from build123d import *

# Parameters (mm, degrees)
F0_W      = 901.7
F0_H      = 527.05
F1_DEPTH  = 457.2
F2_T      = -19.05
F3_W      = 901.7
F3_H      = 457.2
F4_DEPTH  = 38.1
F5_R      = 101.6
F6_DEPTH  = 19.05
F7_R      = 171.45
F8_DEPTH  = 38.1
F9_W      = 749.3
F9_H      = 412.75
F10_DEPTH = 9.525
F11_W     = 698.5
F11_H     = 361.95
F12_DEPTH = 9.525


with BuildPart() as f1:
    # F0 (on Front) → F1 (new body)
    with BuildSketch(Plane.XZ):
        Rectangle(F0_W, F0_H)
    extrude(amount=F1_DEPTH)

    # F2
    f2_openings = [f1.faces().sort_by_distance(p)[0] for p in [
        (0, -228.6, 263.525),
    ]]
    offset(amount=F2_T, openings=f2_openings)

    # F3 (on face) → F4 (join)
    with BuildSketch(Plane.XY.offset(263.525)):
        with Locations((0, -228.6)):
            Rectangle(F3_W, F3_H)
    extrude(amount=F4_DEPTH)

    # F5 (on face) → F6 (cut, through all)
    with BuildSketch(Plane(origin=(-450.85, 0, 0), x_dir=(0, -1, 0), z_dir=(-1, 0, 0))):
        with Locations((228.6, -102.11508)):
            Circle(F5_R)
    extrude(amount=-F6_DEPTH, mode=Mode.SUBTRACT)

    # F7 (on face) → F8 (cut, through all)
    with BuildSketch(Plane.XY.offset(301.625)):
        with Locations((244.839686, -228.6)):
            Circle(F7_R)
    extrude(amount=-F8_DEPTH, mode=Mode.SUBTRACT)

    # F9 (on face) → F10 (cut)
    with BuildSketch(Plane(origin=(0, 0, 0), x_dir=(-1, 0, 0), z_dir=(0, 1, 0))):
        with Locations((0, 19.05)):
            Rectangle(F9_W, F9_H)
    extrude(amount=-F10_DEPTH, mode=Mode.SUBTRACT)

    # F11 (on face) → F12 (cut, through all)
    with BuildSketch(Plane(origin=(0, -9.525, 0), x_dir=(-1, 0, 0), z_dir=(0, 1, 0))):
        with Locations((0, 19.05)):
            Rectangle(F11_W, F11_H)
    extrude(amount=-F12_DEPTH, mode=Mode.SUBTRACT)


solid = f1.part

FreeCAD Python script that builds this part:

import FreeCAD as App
import Part
import Sketcher
from FreeCAD import Vector
Q = App.Units.Quantity


def faces_at(feature, points):
    """Names of the faces that lie closest to the given points."""
    faces = feature.Shape.Faces
    near = lambda p: min(range(len(faces)), key=lambda i: faces[i].distToShape(Part.Vertex(*p))[0])
    return sorted({f"Face{near(p) + 1}" for p in points})

doc = App.newDocument("Part")
body = doc.addObject("PartDesign::Body", "Body")

# Sketch on XZ plane
sketch1 = body.newObject("Sketcher::SketchObject", "Sketch")
sketch1.AttachmentSupport = (doc.getObject("XZ_Plane"), [""])
sketch1.MapMode = "FlatFace"
sketch1.addGeometry(Part.LineSegment(Vector(-451, 264, 0), Vector(-451, -264, 0)), False)
sketch1.addGeometry(Part.LineSegment(Vector(-451, -264, 0), Vector(451, -264, 0)), False)
sketch1.addGeometry(Part.LineSegment(Vector(451, -264, 0), Vector(451, 264, 0)), False)
sketch1.addGeometry(Part.LineSegment(Vector(451, 264, 0), Vector(-451, 264, 0)), False)
sketch1.addConstraint(Sketcher.Constraint("Coincident", 0, 2, 1, 1))
sketch1.addConstraint(Sketcher.Constraint("Coincident", 1, 2, 2, 1))
sketch1.addConstraint(Sketcher.Constraint("Coincident", 2, 2, 3, 1))
sketch1.addConstraint(Sketcher.Constraint("Coincident", 3, 2, 0, 1))
sketch1.addConstraint(Sketcher.Constraint("Vertical", 0))
sketch1.addConstraint(Sketcher.Constraint("Horizontal", 1))
sketch1.addConstraint(Sketcher.Constraint("Vertical", 2))
sketch1.addConstraint(Sketcher.Constraint("Horizontal", 3))
sketch1.addConstraint(Sketcher.Constraint("Symmetric", 0, 2, 2, 2, -1, 1))
sketch1.addConstraint(Sketcher.Constraint("DistanceX", 1, 1, 1, 2, Q("35.5 in")))
sketch1.addConstraint(Sketcher.Constraint("DistanceY", 0, 2, 0, 1, Q("20.75 in")))
pad1 = body.newObject("PartDesign::Pad", "Pad")
pad1.Profile = sketch1
pad1.Length = Q("18 in")
doc.recompute()

thickness = body.newObject("PartDesign::Thickness", "Thickness")
thickness.Base = (pad1, faces_at(pad1, [(0, -228.6, 263.525)]))
thickness.Value = Q("0.75 in")
thickness.Reversed = True
thickness.Join = "Arc"

# Sketch on XY plane
sketch2 = body.newObject("Sketcher::SketchObject", "Sketch001")
sketch2.AttachmentSupport = (doc.getObject("XY_Plane"), [""])
sketch2.MapMode = "FlatFace"
sketch2.AttachmentOffset = App.Placement(Vector(0, 0, 10.375 * 25.4), App.Rotation())
sketch2.addGeometry(Part.LineSegment(Vector(-451, 0, 0), Vector(-451, -457, 0)), False)
sketch2.addGeometry(Part.LineSegment(Vector(-451, -457, 0), Vector(451, -457, 0)), False)
sketch2.addGeometry(Part.LineSegment(Vector(451, -457, 0), Vector(451, 0, 0)), False)
sketch2.addGeometry(Part.LineSegment(Vector(451, 0, 0), Vector(-451, 0, 0)), False)
sketch2.addConstraint(Sketcher.Constraint("Coincident", 0, 2, 1, 1))
sketch2.addConstraint(Sketcher.Constraint("Coincident", 1, 2, 2, 1))
sketch2.addConstraint(Sketcher.Constraint("Coincident", 2, 2, 3, 1))
sketch2.addConstraint(Sketcher.Constraint("Coincident", 3, 2, 0, 1))
sketch2.addConstraint(Sketcher.Constraint("Vertical", 0))
sketch2.addConstraint(Sketcher.Constraint("Horizontal", 1))
sketch2.addConstraint(Sketcher.Constraint("Vertical", 2))
sketch2.addConstraint(Sketcher.Constraint("Horizontal", 3))
sketch2.addConstraint(Sketcher.Constraint("Symmetric", 2, 2, 3, 2, -1, 1))
sketch2.addConstraint(Sketcher.Constraint("DistanceY", 0, 2, 0, 1, Q("18 in")))
sketch2.addConstraint(Sketcher.Constraint("DistanceX", 1, 1, 1, 2, Q("35.5 in")))
pad2 = body.newObject("PartDesign::Pad", "Pad001")
pad2.Profile = sketch2
pad2.Length = Q("1.5 in")

# Sketch on YZ plane
sketch3 = body.newObject("Sketcher::SketchObject", "Sketch002")
sketch3.AttachmentSupport = (doc.getObject("YZ_Plane"), [""])
sketch3.MapMode = "FlatFace"
sketch3.AttachmentOffset = App.Placement(Vector(0, 0, -17.75 * 25.4), App.Rotation())
sketch3.addGeometry(Part.Circle(Vector(-229, -102, 0), Vector(0, 0, 1), 102), False)
sketch3.addConstraint(Sketcher.Constraint("Diameter", 0, Q("8 in")))
sketch3.addConstraint(Sketcher.Constraint("DistanceX", 0, 3, -1, 1, Q("9 in")))
sketch3.addConstraint(Sketcher.Constraint("DistanceY", 0, 3, -1, 1, 102.11508))
pocket1 = body.newObject("PartDesign::Pocket", "Pocket")
pocket1.Profile = sketch3
pocket1.Length = Q("0.75 in")
pocket1.Reversed = True

# Sketch on XY plane
sketch4 = body.newObject("Sketcher::SketchObject", "Sketch003")
sketch4.AttachmentSupport = (doc.getObject("XY_Plane"), [""])
sketch4.MapMode = "FlatFace"
sketch4.AttachmentOffset = App.Placement(Vector(0, 0, 11.875 * 25.4), App.Rotation())
sketch4.addGeometry(Part.Circle(Vector(245, -229, 0), Vector(0, 0, 1), 171), False)
sketch4.addConstraint(Sketcher.Constraint("Diameter", 0, Q("13.5 in")))
sketch4.addConstraint(Sketcher.Constraint("DistanceY", 0, 3, -1, 1, Q("9 in")))
sketch4.addConstraint(Sketcher.Constraint("DistanceX", -1, 1, 0, 3, 244.839686))
pocket2 = body.newObject("PartDesign::Pocket", "Pocket001")
pocket2.Profile = sketch4
pocket2.Length = Q("1.5 in")

# Sketch on XZ plane
sketch5 = body.newObject("Sketcher::SketchObject", "Sketch004")
sketch5.AttachmentSupport = (doc.getObject("XZ_Plane"), [""])
sketch5.MapMode = "FlatFace"
sketch5.addGeometry(Part.LineSegment(Vector(375, 225, 0), Vector(375, -187, 0)), False)
sketch5.addGeometry(Part.LineSegment(Vector(375, -187, 0), Vector(-375, -187, 0)), False)
sketch5.addGeometry(Part.LineSegment(Vector(-375, -187, 0), Vector(-375, 225, 0)), False)
sketch5.addGeometry(Part.LineSegment(Vector(-375, 225, 0), Vector(375, 225, 0)), False)
sketch5.addConstraint(Sketcher.Constraint("Coincident", 0, 2, 1, 1))
sketch5.addConstraint(Sketcher.Constraint("Coincident", 1, 2, 2, 1))
sketch5.addConstraint(Sketcher.Constraint("Coincident", 2, 2, 3, 1))
sketch5.addConstraint(Sketcher.Constraint("Coincident", 3, 2, 0, 1))
sketch5.addConstraint(Sketcher.Constraint("Vertical", 0))
sketch5.addConstraint(Sketcher.Constraint("Horizontal", 1))
sketch5.addConstraint(Sketcher.Constraint("Vertical", 2))
sketch5.addConstraint(Sketcher.Constraint("Horizontal", 3))
sketch5.addConstraint(Sketcher.Constraint("DistanceX", 1, 2, 1, 1, Q("29.5 in")))
sketch5.addConstraint(Sketcher.Constraint("DistanceY", 0, 2, 0, 1, Q("16.25 in")))
sketch5.addConstraint(Sketcher.Constraint("DistanceX", -1, 1, 0, 2, Q("14.75 in")))
sketch5.addConstraint(Sketcher.Constraint("DistanceY", 0, 2, -1, 1, Q("7.375 in")))
pocket3 = body.newObject("PartDesign::Pocket", "Pocket002")
pocket3.Profile = sketch5
pocket3.Length = Q("0.375 in")
pocket3.Reversed = True

# Sketch on XZ plane
sketch6 = body.newObject("Sketcher::SketchObject", "Sketch005")
sketch6.AttachmentSupport = (doc.getObject("XZ_Plane"), [""])
sketch6.MapMode = "FlatFace"
sketch6.AttachmentOffset = App.Placement(Vector(0, 0, 0.375 * 25.4), App.Rotation())
sketch6.addGeometry(Part.LineSegment(Vector(349, 200, 0), Vector(349, -162, 0)), False)
sketch6.addGeometry(Part.LineSegment(Vector(349, -162, 0), Vector(-349, -162, 0)), False)
sketch6.addGeometry(Part.LineSegment(Vector(-349, -162, 0), Vector(-349, 200, 0)), False)
sketch6.addGeometry(Part.LineSegment(Vector(-349, 200, 0), Vector(349, 200, 0)), False)
sketch6.addConstraint(Sketcher.Constraint("Coincident", 0, 2, 1, 1))
sketch6.addConstraint(Sketcher.Constraint("Coincident", 1, 2, 2, 1))
sketch6.addConstraint(Sketcher.Constraint("Coincident", 2, 2, 3, 1))
sketch6.addConstraint(Sketcher.Constraint("Coincident", 3, 2, 0, 1))
sketch6.addConstraint(Sketcher.Constraint("Vertical", 0))
sketch6.addConstraint(Sketcher.Constraint("Horizontal", 1))
sketch6.addConstraint(Sketcher.Constraint("Vertical", 2))
sketch6.addConstraint(Sketcher.Constraint("Horizontal", 3))
sketch6.addConstraint(Sketcher.Constraint("DistanceX", 1, 2, 1, 1, Q("27.5 in")))
sketch6.addConstraint(Sketcher.Constraint("DistanceY", 0, 2, 0, 1, Q("14.25 in")))
sketch6.addConstraint(Sketcher.Constraint("DistanceX", -1, 1, 0, 2, Q("13.75 in")))
sketch6.addConstraint(Sketcher.Constraint("DistanceY", 0, 2, -1, 1, Q("6.375 in")))
pocket4 = body.newObject("PartDesign::Pocket", "Pocket003")
pocket4.Profile = sketch6
pocket4.Length = Q("0.375 in")
pocket4.Reversed = True

doc.recompute()
